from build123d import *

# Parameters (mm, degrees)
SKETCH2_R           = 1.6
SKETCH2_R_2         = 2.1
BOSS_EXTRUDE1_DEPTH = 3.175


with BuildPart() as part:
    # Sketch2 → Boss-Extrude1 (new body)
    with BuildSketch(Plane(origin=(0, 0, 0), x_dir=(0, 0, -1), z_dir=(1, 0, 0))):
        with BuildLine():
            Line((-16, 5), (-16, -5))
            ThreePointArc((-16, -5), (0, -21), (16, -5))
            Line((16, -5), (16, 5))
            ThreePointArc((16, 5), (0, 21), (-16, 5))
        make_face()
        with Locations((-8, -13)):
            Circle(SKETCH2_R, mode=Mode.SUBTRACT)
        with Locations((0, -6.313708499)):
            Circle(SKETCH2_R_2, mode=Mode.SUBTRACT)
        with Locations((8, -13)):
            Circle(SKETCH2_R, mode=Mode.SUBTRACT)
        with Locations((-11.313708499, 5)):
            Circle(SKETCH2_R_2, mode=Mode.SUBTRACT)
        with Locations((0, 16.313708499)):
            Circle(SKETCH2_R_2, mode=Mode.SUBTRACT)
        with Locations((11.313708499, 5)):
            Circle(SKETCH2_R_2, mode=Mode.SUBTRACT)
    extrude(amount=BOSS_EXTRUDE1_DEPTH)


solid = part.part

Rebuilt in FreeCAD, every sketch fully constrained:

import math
import FreeCAD as App
import Part
import Sketcher
from FreeCAD import Vector

doc = App.newDocument("Part")
body = doc.addObject("PartDesign::Body", "Body")

sketch1 = body.newObject("Sketcher::SketchObject", "Sketch")
sketch1.AttachmentSupport = (doc.getObject("YZ_Plane"), [""])
sketch1.MapMode = "FlatFace"
sketch1.addGeometry([
    Part.LineSegment(Vector(5, 16, 0), Vector(-5, 16, 0)),
    Part.ArcOfCircle(Part.Circle(Vector(-5, 0, 0), Vector(0, 0, 1), 16), math.radians(90), math.radians(270)),
    Part.LineSegment(Vector(-5, -16, 0), Vector(5, -16, 0)),
    Part.ArcOfCircle(Part.Circle(Vector(5, 0, 0), Vector(0, 0, 1), 16), math.radians(-90), math.radians(90)),
    Part.Circle(Vector(-13, 8, 0), Vector(0, 0, 1), 1.6),
    Part.Circle(Vector(-13, -8, 0), Vector(0, 0, 1), 1.6),
    Part.Circle(Vector(-6.313708, 0, 0), Vector(0, 0, 1), 2.1),
    Part.Circle(Vector(5, 11.313708, 0), Vector(0, 0, 1), 2.1),
    Part.Circle(Vector(5, -11.313708, 0), Vector(0, 0, 1), 2.1),
    Part.Circle(Vector(16.313708, 0, 0), Vector(0, 0, 1), 2.1),
], False)
sketch1.addConstraint([
    Sketcher.Constraint("Tangent", 0, 2, 1, 1),
    Sketcher.Constraint("Tangent", 1, 2, 2, 1),
    Sketcher.Constraint("Tangent", 2, 2, 3, 1),
    Sketcher.Constraint("Tangent", 3, 2, 0, 1),
    Sketcher.Constraint("Horizontal", 0),
    Sketcher.Constraint("Horizontal", 2),
    Sketcher.Constraint("Equal", 4, 5),
    Sketcher.Constraint("Equal", 6, 7),
    Sketcher.Constraint("Equal", 7, 8),
    Sketcher.Constraint("Equal", 8, 9),
    Sketcher.Constraint("Symmetric", 1, 3, 3, 3, -1, 1),
    Sketcher.Constraint("Symmetric", 4, 3, 5, 3, -1),
    Sketcher.Constraint("Symmetric", 7, 3, 8, 3, -1),
    Sketcher.Constraint("PointOnObject", 6, 3, -1),
    Sketcher.Constraint("PointOnObject", 9, 3, -1),
    Sketcher.Constraint("Vertical", 3, 3, 7, 3),
    Sketcher.Constraint("Radius", 1, 16.0),
    Sketcher.Constraint("Diameter", 4, 3.2),
    Sketcher.Constraint("Diameter", 6, 4.2),
    Sketcher.Constraint("DistanceX", 0, 2, 0, 1, 10.0),
    Sketcher.Constraint("DistanceX", 4, 3, -1, 1, 13.0),
    Sketcher.Constraint("DistanceY", -1, 1, 4, 3, 8.0),
    Sketcher.Constraint("DistanceX", 6, 3, -1, 1, 6.313708),
    Sketcher.Constraint("DistanceY", -1, 1, 7, 3, 11.313708),
    Sketcher.Constraint("DistanceX", -1, 1, 9, 3, 16.313708),
])
pad1 = body.newObject("PartDesign::Pad", "Pad")
pad1.Profile = sketch1
pad1.Length = 3.175

doc.recompute()
